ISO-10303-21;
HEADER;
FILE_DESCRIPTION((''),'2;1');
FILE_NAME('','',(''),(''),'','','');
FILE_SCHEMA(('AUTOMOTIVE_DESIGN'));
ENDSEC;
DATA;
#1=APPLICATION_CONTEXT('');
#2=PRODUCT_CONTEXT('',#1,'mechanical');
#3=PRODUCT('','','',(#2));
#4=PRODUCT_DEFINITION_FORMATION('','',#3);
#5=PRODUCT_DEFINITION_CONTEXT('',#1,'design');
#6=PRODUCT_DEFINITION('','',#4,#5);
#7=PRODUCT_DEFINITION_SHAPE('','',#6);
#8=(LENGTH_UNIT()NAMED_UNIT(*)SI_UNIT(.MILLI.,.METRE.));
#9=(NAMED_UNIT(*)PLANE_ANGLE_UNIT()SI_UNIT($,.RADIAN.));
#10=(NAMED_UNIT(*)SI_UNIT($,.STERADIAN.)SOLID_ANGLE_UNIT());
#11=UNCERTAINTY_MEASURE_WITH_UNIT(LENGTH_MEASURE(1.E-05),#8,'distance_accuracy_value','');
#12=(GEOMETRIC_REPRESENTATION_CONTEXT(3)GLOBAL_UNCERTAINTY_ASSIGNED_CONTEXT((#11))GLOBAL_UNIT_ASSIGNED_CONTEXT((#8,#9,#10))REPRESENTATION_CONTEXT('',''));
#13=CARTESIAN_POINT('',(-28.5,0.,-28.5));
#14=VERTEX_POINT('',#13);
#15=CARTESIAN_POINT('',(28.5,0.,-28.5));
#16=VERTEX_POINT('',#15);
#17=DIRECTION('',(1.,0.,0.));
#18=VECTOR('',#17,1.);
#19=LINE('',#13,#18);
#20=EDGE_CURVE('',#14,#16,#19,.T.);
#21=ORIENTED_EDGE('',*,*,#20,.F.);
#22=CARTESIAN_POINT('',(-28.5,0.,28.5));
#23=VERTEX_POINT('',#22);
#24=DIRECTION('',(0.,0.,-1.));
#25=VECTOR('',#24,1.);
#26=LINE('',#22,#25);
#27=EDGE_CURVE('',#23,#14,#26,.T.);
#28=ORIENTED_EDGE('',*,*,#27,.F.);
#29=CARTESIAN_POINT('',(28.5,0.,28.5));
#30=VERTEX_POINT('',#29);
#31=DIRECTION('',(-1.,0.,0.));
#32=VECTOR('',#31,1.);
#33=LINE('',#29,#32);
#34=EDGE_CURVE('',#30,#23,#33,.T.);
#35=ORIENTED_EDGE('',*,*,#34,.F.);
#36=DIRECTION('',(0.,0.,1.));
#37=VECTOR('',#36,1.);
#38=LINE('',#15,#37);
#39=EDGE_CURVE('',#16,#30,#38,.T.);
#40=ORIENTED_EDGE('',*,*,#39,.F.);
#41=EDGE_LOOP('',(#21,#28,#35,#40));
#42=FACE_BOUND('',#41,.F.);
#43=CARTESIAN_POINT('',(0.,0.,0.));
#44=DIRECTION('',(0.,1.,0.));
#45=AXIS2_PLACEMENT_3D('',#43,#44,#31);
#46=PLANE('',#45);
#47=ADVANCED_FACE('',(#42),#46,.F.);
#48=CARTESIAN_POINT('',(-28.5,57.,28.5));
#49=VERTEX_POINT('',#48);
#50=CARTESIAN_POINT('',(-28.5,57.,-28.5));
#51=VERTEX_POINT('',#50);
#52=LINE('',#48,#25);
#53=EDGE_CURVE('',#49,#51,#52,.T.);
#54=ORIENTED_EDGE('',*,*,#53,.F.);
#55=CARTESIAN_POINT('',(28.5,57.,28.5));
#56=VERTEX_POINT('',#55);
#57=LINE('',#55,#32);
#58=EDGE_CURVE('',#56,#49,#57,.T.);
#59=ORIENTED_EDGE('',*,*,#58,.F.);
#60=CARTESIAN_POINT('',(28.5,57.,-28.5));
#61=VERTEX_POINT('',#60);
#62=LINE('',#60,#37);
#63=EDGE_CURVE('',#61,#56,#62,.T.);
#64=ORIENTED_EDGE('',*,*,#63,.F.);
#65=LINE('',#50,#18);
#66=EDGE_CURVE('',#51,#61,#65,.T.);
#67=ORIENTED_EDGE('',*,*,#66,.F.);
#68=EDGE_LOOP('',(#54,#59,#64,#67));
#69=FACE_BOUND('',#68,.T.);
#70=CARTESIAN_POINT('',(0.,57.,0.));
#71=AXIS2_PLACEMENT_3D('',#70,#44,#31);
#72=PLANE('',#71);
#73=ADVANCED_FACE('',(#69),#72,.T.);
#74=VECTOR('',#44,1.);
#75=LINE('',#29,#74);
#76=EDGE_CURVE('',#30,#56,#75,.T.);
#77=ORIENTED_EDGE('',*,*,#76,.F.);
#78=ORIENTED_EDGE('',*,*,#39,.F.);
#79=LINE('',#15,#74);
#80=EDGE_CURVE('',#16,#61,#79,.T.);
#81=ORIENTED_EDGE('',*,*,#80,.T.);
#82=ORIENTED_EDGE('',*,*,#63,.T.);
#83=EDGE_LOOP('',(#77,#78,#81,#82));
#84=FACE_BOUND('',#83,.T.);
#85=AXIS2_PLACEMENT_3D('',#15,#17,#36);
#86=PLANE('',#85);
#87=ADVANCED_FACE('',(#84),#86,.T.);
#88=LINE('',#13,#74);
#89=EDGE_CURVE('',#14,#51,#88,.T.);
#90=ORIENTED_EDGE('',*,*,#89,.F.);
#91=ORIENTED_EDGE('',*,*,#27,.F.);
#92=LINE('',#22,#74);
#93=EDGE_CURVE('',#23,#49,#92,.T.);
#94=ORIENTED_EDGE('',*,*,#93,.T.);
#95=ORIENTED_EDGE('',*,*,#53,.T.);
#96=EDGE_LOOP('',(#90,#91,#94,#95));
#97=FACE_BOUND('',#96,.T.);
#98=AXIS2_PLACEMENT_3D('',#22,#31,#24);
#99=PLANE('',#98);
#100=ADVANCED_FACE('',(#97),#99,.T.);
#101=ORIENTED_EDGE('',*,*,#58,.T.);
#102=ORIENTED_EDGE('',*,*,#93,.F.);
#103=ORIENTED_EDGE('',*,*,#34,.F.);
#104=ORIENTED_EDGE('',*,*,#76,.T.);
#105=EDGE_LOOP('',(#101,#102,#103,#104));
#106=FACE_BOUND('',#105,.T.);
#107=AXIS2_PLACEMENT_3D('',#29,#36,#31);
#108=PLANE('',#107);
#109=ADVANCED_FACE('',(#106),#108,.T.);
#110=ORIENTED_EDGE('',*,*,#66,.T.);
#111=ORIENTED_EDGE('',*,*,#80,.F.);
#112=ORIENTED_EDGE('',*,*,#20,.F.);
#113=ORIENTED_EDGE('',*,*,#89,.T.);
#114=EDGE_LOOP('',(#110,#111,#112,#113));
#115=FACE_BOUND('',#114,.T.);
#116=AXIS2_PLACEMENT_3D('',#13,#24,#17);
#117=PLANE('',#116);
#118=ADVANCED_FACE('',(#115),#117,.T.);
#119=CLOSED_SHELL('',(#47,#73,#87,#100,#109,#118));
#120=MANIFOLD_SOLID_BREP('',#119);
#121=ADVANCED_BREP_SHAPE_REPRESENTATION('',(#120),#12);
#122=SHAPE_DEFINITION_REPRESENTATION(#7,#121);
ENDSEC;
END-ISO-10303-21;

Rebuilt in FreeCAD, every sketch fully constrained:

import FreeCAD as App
import Part
import Sketcher
from FreeCAD import Vector
Q = App.Units.Quantity


def add_polygon(sketch, points):
    """Adds a closed chain of lines whose ends are joined by coincident constraints."""
    first, n = sketch.GeometryCount, len(points)
    for a, b in zip(points, points[1:] + points[:1]):
        sketch.addGeometry(Part.LineSegment(App.Vector(*a, 0), App.Vector(*b, 0)), False)
    for i in range(n):
        sketch.addConstraint(Sketcher.Constraint("Coincident", first + i, 2, first + (i + 1) % n, 1))

doc = App.newDocument("Part")
params = doc.addObject("Spreadsheet::Sheet", "Params")
for row, (alias, value) in enumerate([
    ("sketch1_width", "57 mm"),
    ("pad1_length", "57 mm"),
], start=1):
    params.set(f"A{row}", alias)
    params.set(f"B{row}", "=" + value)
    params.setAlias(f"B{row}", alias)

body = doc.addObject("PartDesign::Body", "Body")

# Sketch on XZ plane
sketch1 = body.newObject("Sketcher::SketchObject", "Sketch")
sketch1.AttachmentSupport = (doc.getObject("XZ_Plane"), [""])
sketch1.MapMode = "FlatFace"
add_polygon(sketch1, [(-28, 28), (28, 28), (28, -28), (-28, -28)])  # lines 0-3
sketch1.addConstraint([
    Sketcher.Constraint("Horizontal", 0),
    Sketcher.Constraint("Vertical", 1),
    Sketcher.Constraint("Horizontal", 2),
    Sketcher.Constraint("Vertical", 3),
    Sketcher.Constraint("Symmetric", 0, 2, 2, 2, -1, 1),
    Sketcher.Constraint("Equal", 2, 1),
    Sketcher.Constraint("DistanceX", 0, 1, 0, 2, Q("57 mm")),
])
sketch1.setExpression("Constraints[10]", "Params.sketch1_width")
pad1 = body.newObject("PartDesign::Pad", "Pad")
pad1.Profile = sketch1
pad1.setExpression("Length", "Params.pad1_length")
pad1.Reversed = True

doc.recompute()
